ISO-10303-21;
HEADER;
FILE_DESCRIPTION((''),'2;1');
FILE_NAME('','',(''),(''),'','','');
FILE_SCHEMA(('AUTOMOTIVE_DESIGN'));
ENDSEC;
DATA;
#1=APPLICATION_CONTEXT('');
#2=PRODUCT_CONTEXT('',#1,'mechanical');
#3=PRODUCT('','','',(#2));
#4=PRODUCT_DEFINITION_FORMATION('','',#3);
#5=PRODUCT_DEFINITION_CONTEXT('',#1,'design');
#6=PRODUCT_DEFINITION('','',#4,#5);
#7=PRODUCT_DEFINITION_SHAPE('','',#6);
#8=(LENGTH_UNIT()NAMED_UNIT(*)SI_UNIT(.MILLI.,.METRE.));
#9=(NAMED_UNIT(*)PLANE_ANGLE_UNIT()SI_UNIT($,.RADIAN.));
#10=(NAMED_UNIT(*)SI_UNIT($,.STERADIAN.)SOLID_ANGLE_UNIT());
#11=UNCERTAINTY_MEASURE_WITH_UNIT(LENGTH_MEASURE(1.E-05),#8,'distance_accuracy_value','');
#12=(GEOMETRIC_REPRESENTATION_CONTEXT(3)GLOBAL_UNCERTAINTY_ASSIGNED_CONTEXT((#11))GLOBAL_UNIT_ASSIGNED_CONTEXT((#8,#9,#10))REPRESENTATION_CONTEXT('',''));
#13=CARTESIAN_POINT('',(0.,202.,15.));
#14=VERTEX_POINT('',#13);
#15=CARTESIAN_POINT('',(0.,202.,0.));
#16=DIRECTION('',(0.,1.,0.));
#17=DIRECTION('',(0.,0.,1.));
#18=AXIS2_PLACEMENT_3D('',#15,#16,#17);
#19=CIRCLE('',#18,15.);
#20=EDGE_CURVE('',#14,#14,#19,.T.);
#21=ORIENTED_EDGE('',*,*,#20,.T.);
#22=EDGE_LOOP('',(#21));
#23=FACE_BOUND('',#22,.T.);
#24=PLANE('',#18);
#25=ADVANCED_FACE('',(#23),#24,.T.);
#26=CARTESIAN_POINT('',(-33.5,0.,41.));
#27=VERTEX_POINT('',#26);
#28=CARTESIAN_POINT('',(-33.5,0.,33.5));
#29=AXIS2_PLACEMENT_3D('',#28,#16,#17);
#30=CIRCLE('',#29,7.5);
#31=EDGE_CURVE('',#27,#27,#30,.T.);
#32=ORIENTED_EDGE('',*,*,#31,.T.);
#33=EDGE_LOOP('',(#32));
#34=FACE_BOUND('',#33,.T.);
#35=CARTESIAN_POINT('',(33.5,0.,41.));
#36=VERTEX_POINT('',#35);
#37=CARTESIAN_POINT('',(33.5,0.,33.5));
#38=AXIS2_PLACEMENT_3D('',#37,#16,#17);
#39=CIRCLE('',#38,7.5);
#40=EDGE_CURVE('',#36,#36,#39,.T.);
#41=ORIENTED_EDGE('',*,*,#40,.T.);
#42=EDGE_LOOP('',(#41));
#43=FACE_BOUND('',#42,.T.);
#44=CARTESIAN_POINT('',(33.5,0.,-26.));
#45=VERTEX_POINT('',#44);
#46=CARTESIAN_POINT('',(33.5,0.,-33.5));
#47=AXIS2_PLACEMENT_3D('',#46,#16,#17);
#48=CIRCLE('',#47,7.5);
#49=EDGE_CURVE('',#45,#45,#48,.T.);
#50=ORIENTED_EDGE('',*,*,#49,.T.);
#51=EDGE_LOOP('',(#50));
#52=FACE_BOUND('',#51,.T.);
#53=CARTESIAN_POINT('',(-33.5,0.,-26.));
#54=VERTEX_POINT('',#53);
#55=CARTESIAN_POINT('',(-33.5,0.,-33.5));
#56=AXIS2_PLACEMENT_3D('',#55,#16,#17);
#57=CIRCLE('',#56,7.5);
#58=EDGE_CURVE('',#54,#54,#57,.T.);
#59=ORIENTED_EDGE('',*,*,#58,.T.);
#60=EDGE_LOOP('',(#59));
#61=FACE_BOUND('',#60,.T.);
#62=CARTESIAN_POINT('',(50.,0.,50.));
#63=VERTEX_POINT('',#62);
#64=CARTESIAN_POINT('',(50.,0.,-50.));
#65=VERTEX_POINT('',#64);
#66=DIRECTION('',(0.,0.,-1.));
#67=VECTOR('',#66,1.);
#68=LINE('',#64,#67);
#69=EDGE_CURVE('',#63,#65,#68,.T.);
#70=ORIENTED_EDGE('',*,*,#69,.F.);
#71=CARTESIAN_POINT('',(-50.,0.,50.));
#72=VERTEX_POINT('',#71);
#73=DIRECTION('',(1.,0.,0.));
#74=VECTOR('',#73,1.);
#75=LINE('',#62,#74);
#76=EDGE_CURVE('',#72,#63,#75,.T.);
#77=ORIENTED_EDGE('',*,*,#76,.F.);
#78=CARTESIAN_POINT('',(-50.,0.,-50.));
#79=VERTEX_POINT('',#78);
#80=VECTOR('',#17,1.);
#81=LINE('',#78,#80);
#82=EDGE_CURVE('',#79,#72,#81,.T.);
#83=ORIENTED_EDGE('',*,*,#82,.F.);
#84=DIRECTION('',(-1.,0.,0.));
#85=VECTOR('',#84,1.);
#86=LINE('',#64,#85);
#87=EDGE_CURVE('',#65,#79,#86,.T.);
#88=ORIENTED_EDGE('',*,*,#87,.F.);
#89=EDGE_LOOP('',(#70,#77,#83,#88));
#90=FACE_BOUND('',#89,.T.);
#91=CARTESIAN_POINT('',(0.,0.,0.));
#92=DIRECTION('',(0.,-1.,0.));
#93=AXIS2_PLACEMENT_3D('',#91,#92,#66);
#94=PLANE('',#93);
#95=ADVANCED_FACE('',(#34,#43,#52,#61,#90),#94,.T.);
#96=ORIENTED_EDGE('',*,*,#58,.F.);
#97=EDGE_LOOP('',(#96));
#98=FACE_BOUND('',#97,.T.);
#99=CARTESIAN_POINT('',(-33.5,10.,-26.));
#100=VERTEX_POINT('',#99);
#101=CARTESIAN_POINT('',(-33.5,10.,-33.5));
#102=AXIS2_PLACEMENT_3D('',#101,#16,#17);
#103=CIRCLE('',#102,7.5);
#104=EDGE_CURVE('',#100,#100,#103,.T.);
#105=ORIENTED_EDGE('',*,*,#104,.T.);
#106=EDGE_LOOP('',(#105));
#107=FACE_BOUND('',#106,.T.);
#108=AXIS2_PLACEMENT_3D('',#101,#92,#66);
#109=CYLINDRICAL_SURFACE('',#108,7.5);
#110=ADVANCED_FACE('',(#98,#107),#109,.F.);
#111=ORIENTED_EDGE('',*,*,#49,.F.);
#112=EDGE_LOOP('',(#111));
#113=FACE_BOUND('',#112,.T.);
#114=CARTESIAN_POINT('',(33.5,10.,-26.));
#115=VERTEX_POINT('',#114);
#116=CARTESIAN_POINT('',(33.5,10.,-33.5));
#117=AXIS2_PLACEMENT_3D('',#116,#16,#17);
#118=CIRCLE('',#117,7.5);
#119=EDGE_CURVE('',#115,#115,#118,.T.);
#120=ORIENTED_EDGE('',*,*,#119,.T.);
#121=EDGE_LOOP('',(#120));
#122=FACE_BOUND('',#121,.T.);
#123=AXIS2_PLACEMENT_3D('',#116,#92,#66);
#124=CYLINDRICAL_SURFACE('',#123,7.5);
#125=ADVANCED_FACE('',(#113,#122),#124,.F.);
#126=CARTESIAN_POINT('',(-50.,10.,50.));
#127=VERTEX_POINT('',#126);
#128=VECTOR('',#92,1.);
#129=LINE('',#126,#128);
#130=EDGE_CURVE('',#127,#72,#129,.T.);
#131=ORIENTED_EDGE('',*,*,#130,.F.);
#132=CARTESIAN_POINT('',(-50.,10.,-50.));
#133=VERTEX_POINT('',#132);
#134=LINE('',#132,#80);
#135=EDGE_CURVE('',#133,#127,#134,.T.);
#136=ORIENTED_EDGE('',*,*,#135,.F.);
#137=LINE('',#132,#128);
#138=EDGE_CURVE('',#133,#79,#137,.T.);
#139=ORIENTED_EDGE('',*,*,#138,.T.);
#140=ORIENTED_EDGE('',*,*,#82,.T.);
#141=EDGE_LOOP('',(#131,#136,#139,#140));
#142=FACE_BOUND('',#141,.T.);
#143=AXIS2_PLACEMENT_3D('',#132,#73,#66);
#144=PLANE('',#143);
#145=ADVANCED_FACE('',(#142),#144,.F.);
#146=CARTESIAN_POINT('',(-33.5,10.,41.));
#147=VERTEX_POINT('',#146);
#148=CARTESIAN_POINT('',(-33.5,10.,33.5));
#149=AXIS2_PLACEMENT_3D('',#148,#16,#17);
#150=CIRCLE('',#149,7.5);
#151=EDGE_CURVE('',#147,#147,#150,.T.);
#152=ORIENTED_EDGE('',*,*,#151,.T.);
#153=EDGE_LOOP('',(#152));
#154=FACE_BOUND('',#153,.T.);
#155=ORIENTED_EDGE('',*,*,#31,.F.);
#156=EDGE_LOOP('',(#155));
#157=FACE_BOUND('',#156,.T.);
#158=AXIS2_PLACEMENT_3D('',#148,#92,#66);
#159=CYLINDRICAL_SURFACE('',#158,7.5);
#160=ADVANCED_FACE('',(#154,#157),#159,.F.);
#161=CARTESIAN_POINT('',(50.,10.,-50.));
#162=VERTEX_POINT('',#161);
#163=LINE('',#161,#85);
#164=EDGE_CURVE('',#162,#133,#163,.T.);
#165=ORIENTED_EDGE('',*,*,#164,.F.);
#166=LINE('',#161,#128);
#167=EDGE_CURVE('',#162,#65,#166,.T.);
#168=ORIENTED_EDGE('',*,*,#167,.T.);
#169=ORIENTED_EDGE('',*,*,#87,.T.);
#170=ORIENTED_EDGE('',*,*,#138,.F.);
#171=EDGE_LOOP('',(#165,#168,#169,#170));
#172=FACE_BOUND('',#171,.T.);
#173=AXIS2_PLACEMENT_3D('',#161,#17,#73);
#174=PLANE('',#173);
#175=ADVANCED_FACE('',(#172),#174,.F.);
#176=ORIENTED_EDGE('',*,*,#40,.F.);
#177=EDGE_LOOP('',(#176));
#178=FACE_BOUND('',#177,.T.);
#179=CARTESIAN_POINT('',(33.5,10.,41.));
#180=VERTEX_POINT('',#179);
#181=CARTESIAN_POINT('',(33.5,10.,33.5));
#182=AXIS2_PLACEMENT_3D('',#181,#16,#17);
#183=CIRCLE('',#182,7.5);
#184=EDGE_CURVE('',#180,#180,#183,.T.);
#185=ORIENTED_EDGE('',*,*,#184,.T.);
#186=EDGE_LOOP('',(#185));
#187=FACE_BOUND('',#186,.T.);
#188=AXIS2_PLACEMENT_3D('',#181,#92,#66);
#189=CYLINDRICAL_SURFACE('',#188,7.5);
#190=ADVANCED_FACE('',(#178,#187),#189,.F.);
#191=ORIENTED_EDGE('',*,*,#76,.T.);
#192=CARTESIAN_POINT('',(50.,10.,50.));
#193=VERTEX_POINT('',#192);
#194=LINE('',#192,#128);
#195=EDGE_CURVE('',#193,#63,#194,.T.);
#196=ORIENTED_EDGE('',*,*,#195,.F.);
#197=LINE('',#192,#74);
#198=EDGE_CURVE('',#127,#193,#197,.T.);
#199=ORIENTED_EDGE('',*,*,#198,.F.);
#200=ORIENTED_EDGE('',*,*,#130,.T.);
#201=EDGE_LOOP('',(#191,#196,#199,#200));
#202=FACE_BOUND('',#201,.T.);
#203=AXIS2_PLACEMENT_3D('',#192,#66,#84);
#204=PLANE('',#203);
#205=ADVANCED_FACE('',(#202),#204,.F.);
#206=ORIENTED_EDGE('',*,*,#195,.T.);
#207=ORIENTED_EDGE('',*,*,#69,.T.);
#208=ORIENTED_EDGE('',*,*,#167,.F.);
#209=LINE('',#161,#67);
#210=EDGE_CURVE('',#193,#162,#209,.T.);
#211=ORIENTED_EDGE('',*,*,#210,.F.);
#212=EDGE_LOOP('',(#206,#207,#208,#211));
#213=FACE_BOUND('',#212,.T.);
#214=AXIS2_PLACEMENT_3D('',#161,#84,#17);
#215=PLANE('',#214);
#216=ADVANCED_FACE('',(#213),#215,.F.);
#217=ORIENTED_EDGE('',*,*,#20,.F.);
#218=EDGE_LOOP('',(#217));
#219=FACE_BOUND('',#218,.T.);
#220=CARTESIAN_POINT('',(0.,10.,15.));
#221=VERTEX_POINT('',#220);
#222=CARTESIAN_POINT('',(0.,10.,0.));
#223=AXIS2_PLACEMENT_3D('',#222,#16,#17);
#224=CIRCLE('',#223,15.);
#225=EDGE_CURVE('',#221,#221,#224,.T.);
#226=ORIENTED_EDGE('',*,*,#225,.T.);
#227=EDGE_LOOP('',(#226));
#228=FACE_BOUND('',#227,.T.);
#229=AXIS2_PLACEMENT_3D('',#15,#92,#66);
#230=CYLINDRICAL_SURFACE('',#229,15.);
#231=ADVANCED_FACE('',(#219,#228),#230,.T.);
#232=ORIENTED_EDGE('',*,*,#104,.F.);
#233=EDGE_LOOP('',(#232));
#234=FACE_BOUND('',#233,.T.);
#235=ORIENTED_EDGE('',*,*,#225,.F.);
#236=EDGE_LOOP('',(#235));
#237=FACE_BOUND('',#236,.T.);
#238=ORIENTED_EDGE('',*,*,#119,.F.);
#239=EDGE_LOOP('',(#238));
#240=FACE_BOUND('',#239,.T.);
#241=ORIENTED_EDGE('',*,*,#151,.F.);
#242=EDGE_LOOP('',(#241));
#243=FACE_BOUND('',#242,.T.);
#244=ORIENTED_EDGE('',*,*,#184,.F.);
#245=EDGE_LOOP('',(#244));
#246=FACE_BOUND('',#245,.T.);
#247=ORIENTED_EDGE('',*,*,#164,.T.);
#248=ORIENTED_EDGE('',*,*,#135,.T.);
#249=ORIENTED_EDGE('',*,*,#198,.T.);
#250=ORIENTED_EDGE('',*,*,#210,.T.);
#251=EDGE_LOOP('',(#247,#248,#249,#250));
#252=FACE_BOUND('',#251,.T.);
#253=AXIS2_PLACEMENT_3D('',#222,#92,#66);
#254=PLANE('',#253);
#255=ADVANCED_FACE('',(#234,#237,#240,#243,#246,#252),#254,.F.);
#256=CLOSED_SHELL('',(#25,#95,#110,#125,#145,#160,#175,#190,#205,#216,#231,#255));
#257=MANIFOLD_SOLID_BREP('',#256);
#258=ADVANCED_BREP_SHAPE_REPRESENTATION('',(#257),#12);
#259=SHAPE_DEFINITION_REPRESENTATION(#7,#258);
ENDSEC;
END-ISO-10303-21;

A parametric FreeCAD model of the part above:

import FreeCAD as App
import Part
import Sketcher

V = App.Vector

doc = App.newDocument("Part")
body = doc.addObject("PartDesign::Body", "Body")

sketch1 = body.newObject("Sketcher::SketchObject", "Sketch")
sketch1.AttachmentSupport = (doc.getObject("XZ_Plane"), [""])
sketch1.MapMode = "FlatFace"
sketch1.addGeometry([
    Part.LineSegment(V(-50, -50, 0), V(-50, 50, 0)),
    Part.LineSegment(V(-50, 50, 0), V(50, 50, 0)),
    Part.LineSegment(V(50, 50, 0), V(50, -50, 0)),
    Part.LineSegment(V(50, -50, 0), V(-50, -50, 0)),
    Part.Circle(V(-33.5, 33.5, 0), V(0, 0, 1), 7.5),
    Part.Circle(V(33.5, 33.5, 0), V(0, 0, 1), 7.5),
    Part.Circle(V(-33.5, -33.5, 0), V(0, 0, 1), 7.5),
    Part.Circle(V(33.5, -33.5, 0), V(0, 0, 1), 7.5),
], False)
sketch1.addConstraint([
    Sketcher.Constraint("Coincident", 0, 2, 1, 1),
    Sketcher.Constraint("Coincident", 1, 2, 2, 1),
    Sketcher.Constraint("Coincident", 2, 2, 3, 1),
    Sketcher.Constraint("Coincident", 3, 2, 0, 1),
    Sketcher.Constraint("Vertical", 0),
    Sketcher.Constraint("Horizontal", 1),
    Sketcher.Constraint("Vertical", 2),
    Sketcher.Constraint("Horizontal", 3),
    Sketcher.Constraint("Equal", 4, 5),
    Sketcher.Constraint("Equal", 5, 6),
    Sketcher.Constraint("Equal", 6, 7),
    Sketcher.Constraint("Symmetric", 5, 3, 6, 3, -1, 1),
    Sketcher.Constraint("Symmetric", 4, 3, 7, 3, -1, 1),
    Sketcher.Constraint("Symmetric", 0, 2, 2, 2, -1, 1),
    Sketcher.Constraint("Symmetric", 4, 3, 5, 3, -2),
    Sketcher.Constraint("Equal", 3, 0),
    Sketcher.Constraint("Diameter", 4, 15.0),
    Sketcher.Constraint("DistanceX", 1, 1, 1, 2, 100.0),
    Sketcher.Constraint("DistanceX", 4, 3, 5, 3, 67.0),
    Sketcher.Constraint("DistanceY", 6, 3, 4, 3, 67.0),
])
pad1 = body.newObject("PartDesign::Pad", "Pad")
pad1.Profile = sketch1
pad1.Length = 10
pad1.Reversed = True

sketch2 = body.newObject("Sketcher::SketchObject", "Sketch001")
sketch2.AttachmentSupport = (doc.getObject("XZ_Plane"), [""])
sketch2.MapMode = "FlatFace"
sketch2.AttachmentOffset = App.Placement(V(0, 0, -10), App.Rotation())
sketch2.addGeometry(Part.Circle(V(0, 0, 0), V(0, 0, 1), 15), False)
sketch2.addConstraint([
    Sketcher.Constraint("Coincident", 0, 3, -1, 1),
    Sketcher.Constraint("Diameter", 0, 30.0),
])
pad2 = body.newObject("PartDesign::Pad", "Pad001")
pad2.Profile = sketch2
pad2.Length = 192
pad2.Reversed = True

doc.recompute()
